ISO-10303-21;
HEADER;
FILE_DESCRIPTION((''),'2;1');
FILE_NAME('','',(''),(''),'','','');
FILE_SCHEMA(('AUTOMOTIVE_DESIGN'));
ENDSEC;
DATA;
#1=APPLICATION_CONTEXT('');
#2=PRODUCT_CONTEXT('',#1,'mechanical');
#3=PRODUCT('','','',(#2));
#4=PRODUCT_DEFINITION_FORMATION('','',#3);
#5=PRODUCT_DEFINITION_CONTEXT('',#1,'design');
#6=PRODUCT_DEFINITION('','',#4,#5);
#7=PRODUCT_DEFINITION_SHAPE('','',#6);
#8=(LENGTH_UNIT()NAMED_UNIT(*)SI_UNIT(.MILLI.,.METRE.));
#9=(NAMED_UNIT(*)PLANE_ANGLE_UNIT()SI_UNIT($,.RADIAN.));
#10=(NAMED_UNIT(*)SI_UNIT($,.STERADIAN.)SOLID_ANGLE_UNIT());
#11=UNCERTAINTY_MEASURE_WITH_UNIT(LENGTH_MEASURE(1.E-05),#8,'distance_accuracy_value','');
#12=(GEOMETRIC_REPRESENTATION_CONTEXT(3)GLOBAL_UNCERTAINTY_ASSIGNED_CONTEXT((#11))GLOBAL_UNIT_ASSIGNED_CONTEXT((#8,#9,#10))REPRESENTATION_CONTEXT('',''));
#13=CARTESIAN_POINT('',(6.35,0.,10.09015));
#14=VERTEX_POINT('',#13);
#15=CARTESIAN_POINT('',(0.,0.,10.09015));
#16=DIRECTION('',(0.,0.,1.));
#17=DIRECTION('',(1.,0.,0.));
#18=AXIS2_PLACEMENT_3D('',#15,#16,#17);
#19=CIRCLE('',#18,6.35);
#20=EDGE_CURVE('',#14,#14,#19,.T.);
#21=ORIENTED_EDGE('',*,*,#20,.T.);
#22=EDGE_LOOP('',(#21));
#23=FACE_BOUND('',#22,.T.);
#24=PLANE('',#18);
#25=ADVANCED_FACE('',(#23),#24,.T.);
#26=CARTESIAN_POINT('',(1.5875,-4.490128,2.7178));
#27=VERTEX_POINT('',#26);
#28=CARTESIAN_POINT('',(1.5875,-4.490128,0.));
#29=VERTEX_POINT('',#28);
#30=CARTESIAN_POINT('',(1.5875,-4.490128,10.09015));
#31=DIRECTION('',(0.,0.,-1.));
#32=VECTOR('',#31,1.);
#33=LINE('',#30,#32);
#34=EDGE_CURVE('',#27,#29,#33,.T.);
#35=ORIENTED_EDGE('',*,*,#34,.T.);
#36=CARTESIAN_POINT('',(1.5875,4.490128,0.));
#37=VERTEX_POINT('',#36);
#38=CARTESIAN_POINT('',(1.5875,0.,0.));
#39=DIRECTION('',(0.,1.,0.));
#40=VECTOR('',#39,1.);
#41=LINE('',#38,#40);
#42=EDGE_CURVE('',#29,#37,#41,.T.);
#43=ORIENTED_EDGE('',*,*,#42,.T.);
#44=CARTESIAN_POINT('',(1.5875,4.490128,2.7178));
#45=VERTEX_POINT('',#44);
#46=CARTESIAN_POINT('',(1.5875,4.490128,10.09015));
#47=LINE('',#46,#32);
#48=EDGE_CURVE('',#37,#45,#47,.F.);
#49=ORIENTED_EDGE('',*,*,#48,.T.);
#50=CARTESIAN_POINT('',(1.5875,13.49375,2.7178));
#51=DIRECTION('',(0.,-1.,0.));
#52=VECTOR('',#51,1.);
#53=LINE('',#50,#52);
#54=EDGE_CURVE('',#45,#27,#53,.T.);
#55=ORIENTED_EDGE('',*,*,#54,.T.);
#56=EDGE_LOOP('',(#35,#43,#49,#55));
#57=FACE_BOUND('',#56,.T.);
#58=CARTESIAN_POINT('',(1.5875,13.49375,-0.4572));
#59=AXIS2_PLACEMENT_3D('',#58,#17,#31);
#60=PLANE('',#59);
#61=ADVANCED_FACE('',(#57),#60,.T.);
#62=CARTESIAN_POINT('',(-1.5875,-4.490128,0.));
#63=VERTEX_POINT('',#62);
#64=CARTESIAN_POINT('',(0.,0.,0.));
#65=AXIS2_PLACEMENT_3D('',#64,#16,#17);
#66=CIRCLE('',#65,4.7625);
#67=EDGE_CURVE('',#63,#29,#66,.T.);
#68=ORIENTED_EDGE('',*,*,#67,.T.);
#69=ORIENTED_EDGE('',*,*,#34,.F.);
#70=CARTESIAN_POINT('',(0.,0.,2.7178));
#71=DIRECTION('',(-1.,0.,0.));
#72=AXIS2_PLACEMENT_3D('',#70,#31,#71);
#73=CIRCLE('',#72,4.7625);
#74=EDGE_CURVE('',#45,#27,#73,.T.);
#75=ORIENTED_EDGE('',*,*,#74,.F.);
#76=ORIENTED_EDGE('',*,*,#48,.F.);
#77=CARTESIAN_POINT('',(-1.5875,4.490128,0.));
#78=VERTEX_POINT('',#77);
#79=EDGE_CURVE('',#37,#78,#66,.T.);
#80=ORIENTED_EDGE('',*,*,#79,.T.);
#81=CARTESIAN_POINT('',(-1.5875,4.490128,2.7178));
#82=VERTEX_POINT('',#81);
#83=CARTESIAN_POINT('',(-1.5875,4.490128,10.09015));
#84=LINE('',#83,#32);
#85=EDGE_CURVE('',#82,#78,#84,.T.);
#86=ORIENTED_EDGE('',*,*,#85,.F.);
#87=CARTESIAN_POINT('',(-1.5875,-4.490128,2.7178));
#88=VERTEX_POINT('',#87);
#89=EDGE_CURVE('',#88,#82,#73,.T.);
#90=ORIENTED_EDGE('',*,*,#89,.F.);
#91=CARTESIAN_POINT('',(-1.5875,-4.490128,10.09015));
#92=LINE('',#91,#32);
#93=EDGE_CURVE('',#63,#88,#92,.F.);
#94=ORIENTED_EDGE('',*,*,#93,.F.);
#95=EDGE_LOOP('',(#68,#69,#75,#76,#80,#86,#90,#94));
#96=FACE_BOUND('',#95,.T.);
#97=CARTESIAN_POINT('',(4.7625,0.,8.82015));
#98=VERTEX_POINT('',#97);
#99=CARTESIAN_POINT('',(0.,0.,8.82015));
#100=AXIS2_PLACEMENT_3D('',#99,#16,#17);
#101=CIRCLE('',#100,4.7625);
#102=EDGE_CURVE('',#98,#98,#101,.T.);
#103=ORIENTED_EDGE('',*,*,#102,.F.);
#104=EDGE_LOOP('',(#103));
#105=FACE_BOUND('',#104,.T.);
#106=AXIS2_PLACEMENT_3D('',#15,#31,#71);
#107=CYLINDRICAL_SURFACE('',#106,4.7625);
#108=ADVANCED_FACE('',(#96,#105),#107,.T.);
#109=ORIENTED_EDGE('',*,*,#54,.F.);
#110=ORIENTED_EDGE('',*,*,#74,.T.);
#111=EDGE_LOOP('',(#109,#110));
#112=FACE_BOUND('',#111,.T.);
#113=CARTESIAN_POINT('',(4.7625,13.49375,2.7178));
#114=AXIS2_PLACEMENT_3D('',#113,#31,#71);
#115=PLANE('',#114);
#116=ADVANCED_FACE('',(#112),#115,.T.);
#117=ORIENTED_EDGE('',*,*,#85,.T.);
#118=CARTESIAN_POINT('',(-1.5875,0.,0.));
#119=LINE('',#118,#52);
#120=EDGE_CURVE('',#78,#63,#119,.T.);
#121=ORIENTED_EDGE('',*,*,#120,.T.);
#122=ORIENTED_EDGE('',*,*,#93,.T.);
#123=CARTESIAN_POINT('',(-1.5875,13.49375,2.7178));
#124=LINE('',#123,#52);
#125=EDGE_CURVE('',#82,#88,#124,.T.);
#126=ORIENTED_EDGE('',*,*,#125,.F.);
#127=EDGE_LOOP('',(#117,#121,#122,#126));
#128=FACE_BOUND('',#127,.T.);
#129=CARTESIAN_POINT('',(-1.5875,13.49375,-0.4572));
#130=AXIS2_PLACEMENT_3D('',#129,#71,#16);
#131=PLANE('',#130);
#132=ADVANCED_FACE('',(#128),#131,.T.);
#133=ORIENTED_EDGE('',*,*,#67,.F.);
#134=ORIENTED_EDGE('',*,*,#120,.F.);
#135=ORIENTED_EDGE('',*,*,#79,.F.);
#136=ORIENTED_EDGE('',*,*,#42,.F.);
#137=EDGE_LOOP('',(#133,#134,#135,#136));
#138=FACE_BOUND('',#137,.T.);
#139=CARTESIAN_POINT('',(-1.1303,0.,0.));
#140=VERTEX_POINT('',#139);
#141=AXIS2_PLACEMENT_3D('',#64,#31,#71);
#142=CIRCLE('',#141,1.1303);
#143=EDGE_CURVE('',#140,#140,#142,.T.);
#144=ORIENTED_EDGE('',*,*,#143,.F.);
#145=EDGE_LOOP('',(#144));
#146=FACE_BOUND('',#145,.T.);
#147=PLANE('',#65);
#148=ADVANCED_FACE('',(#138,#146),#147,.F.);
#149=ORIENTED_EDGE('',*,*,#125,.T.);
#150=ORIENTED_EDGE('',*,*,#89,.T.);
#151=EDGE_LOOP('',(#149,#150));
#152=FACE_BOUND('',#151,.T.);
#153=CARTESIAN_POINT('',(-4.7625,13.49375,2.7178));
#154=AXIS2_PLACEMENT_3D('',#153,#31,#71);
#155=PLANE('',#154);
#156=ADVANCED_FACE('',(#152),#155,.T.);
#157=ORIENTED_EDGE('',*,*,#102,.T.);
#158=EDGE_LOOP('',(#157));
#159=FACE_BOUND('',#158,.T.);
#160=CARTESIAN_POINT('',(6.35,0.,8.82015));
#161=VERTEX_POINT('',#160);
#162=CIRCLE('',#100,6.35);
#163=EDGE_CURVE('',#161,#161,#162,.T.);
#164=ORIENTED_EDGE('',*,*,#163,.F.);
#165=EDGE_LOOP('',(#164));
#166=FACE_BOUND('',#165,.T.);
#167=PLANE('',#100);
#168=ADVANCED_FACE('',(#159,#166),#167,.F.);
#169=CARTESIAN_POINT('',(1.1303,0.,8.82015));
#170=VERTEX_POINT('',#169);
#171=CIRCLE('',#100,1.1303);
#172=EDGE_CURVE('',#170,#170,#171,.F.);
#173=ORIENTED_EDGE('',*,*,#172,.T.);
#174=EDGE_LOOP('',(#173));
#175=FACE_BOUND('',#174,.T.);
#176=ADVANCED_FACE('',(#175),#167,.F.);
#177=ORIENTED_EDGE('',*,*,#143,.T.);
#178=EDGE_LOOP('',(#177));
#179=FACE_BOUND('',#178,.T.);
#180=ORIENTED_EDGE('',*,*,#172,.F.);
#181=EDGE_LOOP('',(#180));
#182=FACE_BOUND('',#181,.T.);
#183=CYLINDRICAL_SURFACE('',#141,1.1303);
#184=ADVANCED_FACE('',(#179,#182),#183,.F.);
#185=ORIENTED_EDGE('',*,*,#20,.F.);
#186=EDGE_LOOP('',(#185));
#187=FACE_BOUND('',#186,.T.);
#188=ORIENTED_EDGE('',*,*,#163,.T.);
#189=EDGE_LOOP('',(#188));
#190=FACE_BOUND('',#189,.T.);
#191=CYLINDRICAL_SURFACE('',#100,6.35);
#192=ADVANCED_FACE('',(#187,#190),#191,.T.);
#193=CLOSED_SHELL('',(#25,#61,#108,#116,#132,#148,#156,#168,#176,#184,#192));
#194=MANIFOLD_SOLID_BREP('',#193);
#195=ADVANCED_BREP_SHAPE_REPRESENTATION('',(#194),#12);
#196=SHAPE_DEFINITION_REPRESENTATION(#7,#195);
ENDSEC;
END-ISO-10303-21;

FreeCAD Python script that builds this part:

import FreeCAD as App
import Part
import Sketcher
Q = App.Units.Quantity

doc = App.newDocument("Part")
body = doc.addObject("PartDesign::Body", "Body")

sketch1 = body.newObject("Sketcher::SketchObject", "Sketch")
sketch1.AttachmentSupport = (doc.getObject("XY_Plane"), [""])
sketch1.MapMode = "FlatFace"
sketch1.addGeometry(Part.Circle(App.Vector(0, 0, 0), App.Vector(0, 0, 1), 4.7625), False)
sketch1.addConstraint(Sketcher.Constraint("Coincident", 0, 3, -1, 1))
sketch1.addConstraint(Sketcher.Constraint("Diameter", 0, Q("0.375 in")))
pad1 = body.newObject("PartDesign::Pad", "Pad")
pad1.Profile = sketch1
pad1.Length = 10.09015

sketch2 = body.newObject("Sketcher::SketchObject", "Sketch001")
sketch2.AttachmentSupport = (doc.getObject("XZ_Plane"), [""])
sketch2.MapMode = "FlatFace"
sketch2.addGeometry(Part.LineSegment(App.Vector(-4.7625, -0.4572, 0), App.Vector(-4.7625, 2.7178, 0)), False)
sketch2.addGeometry(Part.LineSegment(App.Vector(-4.7625, 2.7178, 0), App.Vector(-1.5875, 2.7178, 0)), False)
sketch2.addGeometry(Part.LineSegment(App.Vector(-1.5875, 2.7178, 0), App.Vector(-1.5875, -0.4572, 0)), False)
sketch2.addGeometry(Part.LineSegment(App.Vector(-1.5875, -0.4572, 0), App.Vector(-4.7625, -0.4572, 0)), False)
sketch2.addGeometry(Part.LineSegment(App.Vector(5.894593, -0.4747, 0), App.Vector(5.894593, -0.335018, 0)), False)
sketch2.addGeometry(Part.LineSegment(App.Vector(5.894593, -0.335018, 0), App.Vector(6.229831, -0.335018, 0)), False)
sketch2.addGeometry(Part.LineSegment(App.Vector(6.229831, -0.335018, 0), App.Vector(6.229831, -0.4747, 0)), False)
sketch2.addGeometry(Part.LineSegment(App.Vector(6.229831, -0.4747, 0), App.Vector(5.894593, -0.4747, 0)), False)
sketch2.addGeometry(Part.LineSegment(App.Vector(1.5875, -0.4572, 0), App.Vector(1.5875, 2.7178, 0)), False)
sketch2.addGeometry(Part.LineSegment(App.Vector(1.5875, 2.7178, 0), App.Vector(4.7625, 2.7178, 0)), False)
sketch2.addGeometry(Part.LineSegment(App.Vector(4.7625, 2.7178, 0), App.Vector(4.7625, -0.4572, 0)), False)
sketch2.addGeometry(Part.LineSegment(App.Vector(4.7625, -0.4572, 0), App.Vector(1.5875, -0.4572, 0)), False)
sketch2.addConstraint(Sketcher.Constraint("Coincident", 0, 2, 1, 1))
sketch2.addConstraint(Sketcher.Constraint("Coincident", 1, 2, 2, 1))
sketch2.addConstraint(Sketcher.Constraint("Coincident", 2, 2, 3, 1))
sketch2.addConstraint(Sketcher.Constraint("Coincident", 3, 2, 0, 1))
sketch2.addConstraint(Sketcher.Constraint("Coincident", 4, 2, 5, 1))
sketch2.addConstraint(Sketcher.Constraint("Coincident", 5, 2, 6, 1))
sketch2.addConstraint(Sketcher.Constraint("Coincident", 6, 2, 7, 1))
sketch2.addConstraint(Sketcher.Constraint("Coincident", 7, 2, 4, 1))
sketch2.addConstraint(Sketcher.Constraint("Coincident", 8, 2, 9, 1))
sketch2.addConstraint(Sketcher.Constraint("Coincident", 9, 2, 10, 1))
sketch2.addConstraint(Sketcher.Constraint("Coincident", 10, 2, 11, 1))
sketch2.addConstraint(Sketcher.Constraint("Coincident", 11, 2, 8, 1))
sketch2.addConstraint(Sketcher.Constraint("Vertical", 0))
sketch2.addConstraint(Sketcher.Constraint("Horizontal", 1))
sketch2.addConstraint(Sketcher.Constraint("Vertical", 2))
sketch2.addConstraint(Sketcher.Constraint("Horizontal", 3))
sketch2.addConstraint(Sketcher.Constraint("Vertical", 4))
sketch2.addConstraint(Sketcher.Constraint("Horizontal", 5))
sketch2.addConstraint(Sketcher.Constraint("Vertical", 6))
sketch2.addConstraint(Sketcher.Constraint("Horizontal", 7))
sketch2.addConstraint(Sketcher.Constraint("Vertical", 8))
sketch2.addConstraint(Sketcher.Constraint("Horizontal", 9))
sketch2.addConstraint(Sketcher.Constraint("Vertical", 10))
sketch2.addConstraint(Sketcher.Constraint("Horizontal", 11))
sketch2.addConstraint(Sketcher.Constraint("Symmetric", 1, 2, 8, 2, -2))
sketch2.addConstraint(Sketcher.Constraint("Symmetric", 3, 2, 10, 2, -2))
sketch2.addConstraint(Sketcher.Constraint("Equal", 11, 0))
sketch2.addConstraint(Sketcher.Constraint("DistanceX", 1, 1, 1, 2, Q("0.125 in")))
sketch2.addConstraint(Sketcher.Constraint("DistanceX", 0, 2, -1, 1, Q("0.1875 in")))
sketch2.addConstraint(Sketcher.Constraint("DistanceY", -1, 1, 0, 2, Q("0.107 in")))
sketch2.addConstraint(Sketcher.Constraint("DistanceY", 6, 2, -1, 1, 0.4747))
sketch2.addConstraint(Sketcher.Constraint("DistanceX", 5, 1, 5, 2, 0.335238))
sketch2.addConstraint(Sketcher.Constraint("DistanceY", 4, 1, 4, 2, 0.139682))
sketch2.addConstraint(Sketcher.Constraint("DistanceX", -1, 1, 5, 2, 6.229831))
pocket1 = body.newObject("PartDesign::Pocket", "Pocket")
pocket1.Profile = sketch2
pocket1.Type = "ThroughAll"
pocket1.Midplane = True

sketch3 = body.newObject("Sketcher::SketchObject", "Sketch002")
sketch3.AttachmentSupport = (doc.getObject("XY_Plane"), [""])
sketch3.MapMode = "FlatFace"
sketch3.addGeometry(Part.Circle(App.Vector(0, 0, 0), App.Vector(0, 0, 1), 1.1303), False)
sketch3.addConstraint(Sketcher.Constraint("Coincident", 0, 3, -1, 1))
sketch3.addConstraint(Sketcher.Constraint("Diameter", 0, Q("0.089 in")))
doc.recompute()
hole = body.newObject("PartDesign::Hole", "Hole")
hole.Profile = sketch3
hole.ThreadType = "None"
hole.Diameter = Q("0.089 in")
hole.DepthType = "Dimension"
hole.Depth = Q("0.349 in")
hole.DrillPoint = "Angled"
hole.DrillPointAngle = 118
hole.Reversed = True

sketch4 = body.newObject("Sketcher::SketchObject", "Sketch003")
sketch4.AttachmentSupport = (doc.getObject("XY_Plane"), [""])
sketch4.MapMode = "FlatFace"
sketch4.AttachmentOffset = App.Placement(App.Vector(0, 0, 10.09015), App.Rotation())
sketch4.addGeometry(Part.Circle(App.Vector(0, 0, 0), App.Vector(0, 0, 1), 6.35), False)
sketch4.addConstraint(Sketcher.Constraint("Coincident", 0, 3, -1, 1))
sketch4.addConstraint(Sketcher.Constraint("Diameter", 0, Q("0.5 in")))
pad2 = body.newObject("PartDesign::Pad", "Pad001")
pad2.Profile = sketch4
pad2.Length = Q("0.05 in")
pad2.Reversed = True

doc.recompute()
